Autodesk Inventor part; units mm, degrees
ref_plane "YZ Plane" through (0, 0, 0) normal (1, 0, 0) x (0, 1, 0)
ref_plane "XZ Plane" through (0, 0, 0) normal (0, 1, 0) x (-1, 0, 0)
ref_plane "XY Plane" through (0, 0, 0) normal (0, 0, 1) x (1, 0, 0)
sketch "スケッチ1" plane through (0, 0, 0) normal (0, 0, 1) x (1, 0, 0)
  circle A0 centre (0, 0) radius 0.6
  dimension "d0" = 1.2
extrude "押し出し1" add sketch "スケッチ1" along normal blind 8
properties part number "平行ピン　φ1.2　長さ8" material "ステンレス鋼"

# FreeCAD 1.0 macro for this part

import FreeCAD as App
import Part
import Sketcher

V = App.Vector

doc = App.newDocument("Part")
body = doc.addObject("PartDesign::Body", "Body")

# Sketch on XY plane
sketch1 = body.newObject("Sketcher::SketchObject", "Sketch")
sketch1.AttachmentSupport = (doc.getObject("XY_Plane"), [""])
sketch1.MapMode = "FlatFace"
sketch1.addGeometry(Part.Circle(V(0, 0, 0), V(0, 0, 1), 0.6), False)
sketch1.addConstraint([
    Sketcher.Constraint("Coincident", 0, 3, -1, 1),
    Sketcher.Constraint("Diameter", 0, 1.2),
])
pad1 = body.newObject("PartDesign::Pad", "Pad")
pad1.Profile = sketch1
pad1.Length = 8

doc.recompute()
